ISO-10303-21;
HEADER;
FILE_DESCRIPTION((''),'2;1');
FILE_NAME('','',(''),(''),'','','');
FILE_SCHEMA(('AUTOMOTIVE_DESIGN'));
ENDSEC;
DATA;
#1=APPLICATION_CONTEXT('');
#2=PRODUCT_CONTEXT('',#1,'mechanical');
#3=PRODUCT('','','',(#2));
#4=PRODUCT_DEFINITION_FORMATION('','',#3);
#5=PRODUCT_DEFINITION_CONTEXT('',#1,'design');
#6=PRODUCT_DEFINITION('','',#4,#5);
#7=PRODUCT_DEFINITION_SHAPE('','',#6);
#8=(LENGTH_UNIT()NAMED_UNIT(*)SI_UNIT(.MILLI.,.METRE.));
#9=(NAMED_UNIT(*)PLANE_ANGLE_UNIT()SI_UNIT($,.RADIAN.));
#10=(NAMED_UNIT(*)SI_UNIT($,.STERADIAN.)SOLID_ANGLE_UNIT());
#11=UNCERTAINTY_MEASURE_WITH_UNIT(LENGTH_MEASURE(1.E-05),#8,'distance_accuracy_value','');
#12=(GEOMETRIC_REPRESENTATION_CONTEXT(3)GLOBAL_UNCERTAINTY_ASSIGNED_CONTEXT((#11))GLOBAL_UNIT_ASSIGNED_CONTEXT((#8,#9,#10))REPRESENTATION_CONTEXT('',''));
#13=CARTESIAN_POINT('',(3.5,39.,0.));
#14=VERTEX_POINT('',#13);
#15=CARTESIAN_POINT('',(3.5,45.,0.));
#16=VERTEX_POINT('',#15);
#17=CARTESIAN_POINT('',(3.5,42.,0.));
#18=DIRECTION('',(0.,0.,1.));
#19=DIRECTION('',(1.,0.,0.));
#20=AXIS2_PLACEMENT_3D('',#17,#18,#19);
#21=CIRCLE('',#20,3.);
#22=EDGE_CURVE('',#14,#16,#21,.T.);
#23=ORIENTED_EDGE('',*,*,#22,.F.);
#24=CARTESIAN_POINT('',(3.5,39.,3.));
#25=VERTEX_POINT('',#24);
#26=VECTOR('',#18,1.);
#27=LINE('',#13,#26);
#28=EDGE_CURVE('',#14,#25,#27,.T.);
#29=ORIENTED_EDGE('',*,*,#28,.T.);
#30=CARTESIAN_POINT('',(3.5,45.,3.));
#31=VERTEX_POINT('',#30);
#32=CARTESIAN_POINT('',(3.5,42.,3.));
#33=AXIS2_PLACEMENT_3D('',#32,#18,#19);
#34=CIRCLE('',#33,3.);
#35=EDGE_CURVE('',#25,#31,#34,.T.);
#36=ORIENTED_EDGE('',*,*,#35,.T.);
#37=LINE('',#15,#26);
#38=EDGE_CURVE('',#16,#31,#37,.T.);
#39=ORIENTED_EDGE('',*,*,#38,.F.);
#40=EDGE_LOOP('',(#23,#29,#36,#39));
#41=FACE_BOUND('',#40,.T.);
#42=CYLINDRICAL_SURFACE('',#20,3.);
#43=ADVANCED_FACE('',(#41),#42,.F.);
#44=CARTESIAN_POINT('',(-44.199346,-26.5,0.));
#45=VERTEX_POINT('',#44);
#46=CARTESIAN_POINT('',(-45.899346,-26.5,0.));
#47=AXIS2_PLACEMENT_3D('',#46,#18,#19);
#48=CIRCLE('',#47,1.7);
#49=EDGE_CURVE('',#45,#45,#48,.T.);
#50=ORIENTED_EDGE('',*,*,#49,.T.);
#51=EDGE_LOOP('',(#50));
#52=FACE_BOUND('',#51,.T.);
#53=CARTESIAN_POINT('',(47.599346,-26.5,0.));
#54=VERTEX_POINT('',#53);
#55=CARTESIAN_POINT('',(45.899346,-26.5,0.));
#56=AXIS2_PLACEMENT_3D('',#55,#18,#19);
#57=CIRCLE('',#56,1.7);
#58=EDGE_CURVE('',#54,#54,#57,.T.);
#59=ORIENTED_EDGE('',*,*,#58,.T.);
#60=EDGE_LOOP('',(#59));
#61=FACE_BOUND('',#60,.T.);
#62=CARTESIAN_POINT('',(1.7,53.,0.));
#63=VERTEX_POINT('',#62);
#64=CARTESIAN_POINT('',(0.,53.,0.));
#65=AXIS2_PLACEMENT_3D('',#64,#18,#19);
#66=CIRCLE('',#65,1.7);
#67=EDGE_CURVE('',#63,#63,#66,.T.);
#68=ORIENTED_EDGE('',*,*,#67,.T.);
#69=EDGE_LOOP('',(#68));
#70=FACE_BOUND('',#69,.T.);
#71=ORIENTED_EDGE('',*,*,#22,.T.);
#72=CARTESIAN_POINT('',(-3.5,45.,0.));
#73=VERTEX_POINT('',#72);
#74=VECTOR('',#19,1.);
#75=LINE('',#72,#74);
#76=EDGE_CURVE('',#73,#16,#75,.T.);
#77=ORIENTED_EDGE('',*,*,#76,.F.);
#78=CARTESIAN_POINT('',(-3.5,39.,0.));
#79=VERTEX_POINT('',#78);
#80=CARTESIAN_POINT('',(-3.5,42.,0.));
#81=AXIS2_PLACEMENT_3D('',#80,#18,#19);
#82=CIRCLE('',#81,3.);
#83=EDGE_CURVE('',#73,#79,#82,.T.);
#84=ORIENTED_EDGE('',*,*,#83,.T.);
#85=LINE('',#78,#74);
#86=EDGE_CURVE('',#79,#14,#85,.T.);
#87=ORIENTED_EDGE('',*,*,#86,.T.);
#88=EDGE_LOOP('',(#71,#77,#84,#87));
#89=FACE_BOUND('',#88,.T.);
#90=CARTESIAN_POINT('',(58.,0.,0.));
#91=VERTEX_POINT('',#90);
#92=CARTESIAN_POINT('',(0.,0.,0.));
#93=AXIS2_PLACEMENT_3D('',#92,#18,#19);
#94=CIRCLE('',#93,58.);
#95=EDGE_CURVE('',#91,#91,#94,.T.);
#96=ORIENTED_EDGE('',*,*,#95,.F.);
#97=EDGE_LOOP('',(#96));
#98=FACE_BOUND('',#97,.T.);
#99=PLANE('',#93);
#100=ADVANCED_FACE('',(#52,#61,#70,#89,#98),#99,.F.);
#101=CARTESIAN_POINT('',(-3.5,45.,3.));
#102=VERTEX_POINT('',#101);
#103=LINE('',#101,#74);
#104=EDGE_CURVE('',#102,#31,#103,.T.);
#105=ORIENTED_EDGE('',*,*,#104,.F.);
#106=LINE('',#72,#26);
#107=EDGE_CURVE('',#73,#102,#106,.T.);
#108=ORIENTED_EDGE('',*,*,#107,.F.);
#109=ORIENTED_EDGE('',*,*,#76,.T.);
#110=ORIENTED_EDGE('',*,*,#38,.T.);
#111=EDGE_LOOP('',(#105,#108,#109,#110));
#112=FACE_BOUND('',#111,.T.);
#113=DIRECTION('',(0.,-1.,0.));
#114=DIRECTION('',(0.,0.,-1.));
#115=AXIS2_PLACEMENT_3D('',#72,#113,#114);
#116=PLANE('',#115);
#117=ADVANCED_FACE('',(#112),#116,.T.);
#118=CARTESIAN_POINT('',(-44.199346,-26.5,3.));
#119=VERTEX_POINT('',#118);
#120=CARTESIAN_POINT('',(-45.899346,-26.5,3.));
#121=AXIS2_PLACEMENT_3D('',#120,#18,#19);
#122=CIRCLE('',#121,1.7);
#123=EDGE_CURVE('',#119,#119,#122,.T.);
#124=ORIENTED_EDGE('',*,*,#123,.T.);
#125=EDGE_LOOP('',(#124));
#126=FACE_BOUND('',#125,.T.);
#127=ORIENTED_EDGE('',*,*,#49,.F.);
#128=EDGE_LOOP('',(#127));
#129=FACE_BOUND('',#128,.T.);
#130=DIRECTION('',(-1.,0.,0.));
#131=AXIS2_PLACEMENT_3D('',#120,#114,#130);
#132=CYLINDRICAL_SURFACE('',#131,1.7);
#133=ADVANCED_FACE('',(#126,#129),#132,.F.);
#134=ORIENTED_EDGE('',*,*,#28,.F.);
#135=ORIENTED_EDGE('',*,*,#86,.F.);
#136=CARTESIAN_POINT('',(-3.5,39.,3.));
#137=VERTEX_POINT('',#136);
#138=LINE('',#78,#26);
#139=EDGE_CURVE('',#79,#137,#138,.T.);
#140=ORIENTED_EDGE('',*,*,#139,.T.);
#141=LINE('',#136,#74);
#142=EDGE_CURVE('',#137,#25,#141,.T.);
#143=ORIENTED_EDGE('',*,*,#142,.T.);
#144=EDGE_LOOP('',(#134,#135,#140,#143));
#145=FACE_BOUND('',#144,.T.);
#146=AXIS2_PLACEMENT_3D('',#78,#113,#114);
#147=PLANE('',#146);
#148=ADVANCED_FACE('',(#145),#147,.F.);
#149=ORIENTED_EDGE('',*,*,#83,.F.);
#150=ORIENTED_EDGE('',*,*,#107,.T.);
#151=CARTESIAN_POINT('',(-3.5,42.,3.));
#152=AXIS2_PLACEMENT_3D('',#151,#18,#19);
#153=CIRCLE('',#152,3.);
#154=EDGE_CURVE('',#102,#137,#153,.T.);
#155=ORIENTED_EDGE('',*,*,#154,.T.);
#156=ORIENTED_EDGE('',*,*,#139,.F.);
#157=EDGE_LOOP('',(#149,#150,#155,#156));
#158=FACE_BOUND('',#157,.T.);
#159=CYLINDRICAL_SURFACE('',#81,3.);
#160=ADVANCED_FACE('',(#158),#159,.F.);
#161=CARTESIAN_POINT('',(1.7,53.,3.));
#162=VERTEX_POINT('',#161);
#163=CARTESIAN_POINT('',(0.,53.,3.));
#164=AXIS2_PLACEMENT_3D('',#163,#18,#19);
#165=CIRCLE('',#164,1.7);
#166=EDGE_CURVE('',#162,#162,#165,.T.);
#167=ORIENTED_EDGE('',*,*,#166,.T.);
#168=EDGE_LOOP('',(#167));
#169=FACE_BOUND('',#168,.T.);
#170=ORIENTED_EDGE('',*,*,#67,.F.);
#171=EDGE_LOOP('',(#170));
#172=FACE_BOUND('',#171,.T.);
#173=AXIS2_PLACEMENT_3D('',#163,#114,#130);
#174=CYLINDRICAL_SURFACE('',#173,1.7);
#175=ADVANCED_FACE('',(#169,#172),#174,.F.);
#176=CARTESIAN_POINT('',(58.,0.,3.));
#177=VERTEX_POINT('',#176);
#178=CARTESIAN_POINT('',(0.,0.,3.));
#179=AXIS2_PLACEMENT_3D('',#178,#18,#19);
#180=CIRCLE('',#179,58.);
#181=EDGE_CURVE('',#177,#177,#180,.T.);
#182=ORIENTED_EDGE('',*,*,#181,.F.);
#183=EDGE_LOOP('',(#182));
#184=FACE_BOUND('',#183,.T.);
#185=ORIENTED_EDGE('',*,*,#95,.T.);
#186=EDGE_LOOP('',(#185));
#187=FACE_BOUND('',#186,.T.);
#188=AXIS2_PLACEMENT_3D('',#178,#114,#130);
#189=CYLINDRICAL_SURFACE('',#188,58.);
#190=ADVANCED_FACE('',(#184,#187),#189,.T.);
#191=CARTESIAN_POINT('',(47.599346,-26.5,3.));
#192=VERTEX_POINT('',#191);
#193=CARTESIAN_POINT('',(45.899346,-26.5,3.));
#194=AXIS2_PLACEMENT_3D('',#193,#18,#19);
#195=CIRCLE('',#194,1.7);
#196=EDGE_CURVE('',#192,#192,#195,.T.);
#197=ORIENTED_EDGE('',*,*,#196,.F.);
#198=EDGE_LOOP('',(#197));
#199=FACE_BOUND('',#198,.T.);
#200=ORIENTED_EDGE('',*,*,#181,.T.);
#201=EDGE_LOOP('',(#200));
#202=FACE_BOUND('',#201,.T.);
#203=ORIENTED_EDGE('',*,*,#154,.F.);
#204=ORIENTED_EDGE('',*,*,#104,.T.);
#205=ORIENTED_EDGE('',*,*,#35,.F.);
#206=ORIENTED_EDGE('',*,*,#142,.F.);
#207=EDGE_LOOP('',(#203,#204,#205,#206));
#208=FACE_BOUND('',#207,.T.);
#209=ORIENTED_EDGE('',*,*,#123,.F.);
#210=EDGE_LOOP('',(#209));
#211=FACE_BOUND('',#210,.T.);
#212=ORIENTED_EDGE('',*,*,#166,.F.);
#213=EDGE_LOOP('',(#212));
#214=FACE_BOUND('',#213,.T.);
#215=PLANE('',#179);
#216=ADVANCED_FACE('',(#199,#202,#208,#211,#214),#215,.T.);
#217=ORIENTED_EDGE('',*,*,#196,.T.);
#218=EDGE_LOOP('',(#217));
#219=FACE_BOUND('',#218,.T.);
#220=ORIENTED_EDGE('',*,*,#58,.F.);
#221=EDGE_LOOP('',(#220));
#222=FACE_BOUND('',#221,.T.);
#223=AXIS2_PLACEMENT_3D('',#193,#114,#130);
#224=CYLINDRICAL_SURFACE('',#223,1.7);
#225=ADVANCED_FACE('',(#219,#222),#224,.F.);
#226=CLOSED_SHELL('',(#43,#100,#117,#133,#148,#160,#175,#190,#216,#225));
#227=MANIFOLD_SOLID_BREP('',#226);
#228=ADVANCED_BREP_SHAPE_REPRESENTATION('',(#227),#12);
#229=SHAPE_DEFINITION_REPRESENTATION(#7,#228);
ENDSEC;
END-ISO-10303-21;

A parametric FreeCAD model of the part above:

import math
import FreeCAD as App
import Part
import Sketcher

V = App.Vector

doc = App.newDocument("Part")
body = doc.addObject("PartDesign::Body", "Body")

# Sketch on XY plane
sketch1 = body.newObject("Sketcher::SketchObject", "Sketch")
sketch1.AttachmentSupport = (doc.getObject("XY_Plane"), [""])
sketch1.MapMode = "FlatFace"
sketch1.addGeometry(Part.Circle(V(0, 0, 0), V(0, 0, 1), 58), False)
sketch1.addGeometry(Part.Circle(V(-45.9, -26.5, 0), V(0, 0, 1), 1.7), False)
sketch1.addGeometry(Part.Circle(V(45.9, -26.5, 0), V(0, 0, 1), 1.7), False)
sketch1.addGeometry(Part.Circle(V(0, 53, 0), V(0, 0, 1), 1.7), False)
sketch1.addConstraint(Sketcher.Constraint("Coincident", 0, 3, -1, 1))
sketch1.addConstraint(Sketcher.Constraint("Equal", 1, 2))
sketch1.addConstraint(Sketcher.Constraint("Equal", 2, 3))
sketch1.addConstraint(Sketcher.Constraint("Symmetric", 1, 3, 2, 3, -2))
sketch1.addConstraint(Sketcher.Constraint("PointOnObject", 3, 3, -2))
sketch1.addConstraint(Sketcher.Constraint("Diameter", 0, 116.0))
sketch1.addConstraint(Sketcher.Constraint("Diameter", 1, 3.4))
sketch1.addConstraint(Sketcher.Constraint("DistanceY", -1, 1, 3, 3, 53.0))
sketch1.addConstraint(Sketcher.Constraint("DistanceY", 1, 3, -1, 1, 26.5))
sketch1.addConstraint(Sketcher.Constraint("DistanceX", 1, 3, -1, 1, 45.899346))
pad1 = body.newObject("PartDesign::Pad", "Pad")
pad1.Profile = sketch1
pad1.Length = 3

# Sketch on XY plane
sketch2 = body.newObject("Sketcher::SketchObject", "Sketch001")
sketch2.AttachmentSupport = (doc.getObject("XY_Plane"), [""])
sketch2.MapMode = "FlatFace"
sketch2.AttachmentOffset = App.Placement(V(0, 0, 3), App.Rotation())
sketch2.addGeometry(Part.LineSegment(V(3.5, 45, 0), V(-3.5, 45, 0)), False)
sketch2.addGeometry(Part.ArcOfCircle(Part.Circle(V(-3.5, 42, 0), V(0, 0, 1), 3), math.radians(90), math.radians(270)), False)
sketch2.addGeometry(Part.LineSegment(V(-3.5, 39, 0), V(3.5, 39, 0)), False)
sketch2.addGeometry(Part.ArcOfCircle(Part.Circle(V(3.5, 42, 0), V(0, 0, 1), 3), math.radians(-90), math.radians(90)), False)
sketch2.addConstraint(Sketcher.Constraint("Tangent", 0, 2, 1, 1))
sketch2.addConstraint(Sketcher.Constraint("Tangent", 1, 2, 2, 1))
sketch2.addConstraint(Sketcher.Constraint("Tangent", 2, 2, 3, 1))
sketch2.addConstraint(Sketcher.Constraint("Tangent", 3, 2, 0, 1))
sketch2.addConstraint(Sketcher.Constraint("Horizontal", 0))
sketch2.addConstraint(Sketcher.Constraint("Horizontal", 2))
sketch2.addConstraint(Sketcher.Constraint("Radius", 1, 3.0))
sketch2.addConstraint(Sketcher.Constraint("DistanceX", 0, 2, 0, 1, 7.0))
sketch2.addConstraint(Sketcher.Constraint("DistanceY", -1, 1, 1, 3, 42.0))
sketch2.addConstraint(Sketcher.Constraint("DistanceX", 1, 3, -1, 1, 3.5))
pocket1 = body.newObject("PartDesign::Pocket", "Pocket")
pocket1.Profile = sketch2
pocket1.Type = "ThroughAll"

doc.recompute()
